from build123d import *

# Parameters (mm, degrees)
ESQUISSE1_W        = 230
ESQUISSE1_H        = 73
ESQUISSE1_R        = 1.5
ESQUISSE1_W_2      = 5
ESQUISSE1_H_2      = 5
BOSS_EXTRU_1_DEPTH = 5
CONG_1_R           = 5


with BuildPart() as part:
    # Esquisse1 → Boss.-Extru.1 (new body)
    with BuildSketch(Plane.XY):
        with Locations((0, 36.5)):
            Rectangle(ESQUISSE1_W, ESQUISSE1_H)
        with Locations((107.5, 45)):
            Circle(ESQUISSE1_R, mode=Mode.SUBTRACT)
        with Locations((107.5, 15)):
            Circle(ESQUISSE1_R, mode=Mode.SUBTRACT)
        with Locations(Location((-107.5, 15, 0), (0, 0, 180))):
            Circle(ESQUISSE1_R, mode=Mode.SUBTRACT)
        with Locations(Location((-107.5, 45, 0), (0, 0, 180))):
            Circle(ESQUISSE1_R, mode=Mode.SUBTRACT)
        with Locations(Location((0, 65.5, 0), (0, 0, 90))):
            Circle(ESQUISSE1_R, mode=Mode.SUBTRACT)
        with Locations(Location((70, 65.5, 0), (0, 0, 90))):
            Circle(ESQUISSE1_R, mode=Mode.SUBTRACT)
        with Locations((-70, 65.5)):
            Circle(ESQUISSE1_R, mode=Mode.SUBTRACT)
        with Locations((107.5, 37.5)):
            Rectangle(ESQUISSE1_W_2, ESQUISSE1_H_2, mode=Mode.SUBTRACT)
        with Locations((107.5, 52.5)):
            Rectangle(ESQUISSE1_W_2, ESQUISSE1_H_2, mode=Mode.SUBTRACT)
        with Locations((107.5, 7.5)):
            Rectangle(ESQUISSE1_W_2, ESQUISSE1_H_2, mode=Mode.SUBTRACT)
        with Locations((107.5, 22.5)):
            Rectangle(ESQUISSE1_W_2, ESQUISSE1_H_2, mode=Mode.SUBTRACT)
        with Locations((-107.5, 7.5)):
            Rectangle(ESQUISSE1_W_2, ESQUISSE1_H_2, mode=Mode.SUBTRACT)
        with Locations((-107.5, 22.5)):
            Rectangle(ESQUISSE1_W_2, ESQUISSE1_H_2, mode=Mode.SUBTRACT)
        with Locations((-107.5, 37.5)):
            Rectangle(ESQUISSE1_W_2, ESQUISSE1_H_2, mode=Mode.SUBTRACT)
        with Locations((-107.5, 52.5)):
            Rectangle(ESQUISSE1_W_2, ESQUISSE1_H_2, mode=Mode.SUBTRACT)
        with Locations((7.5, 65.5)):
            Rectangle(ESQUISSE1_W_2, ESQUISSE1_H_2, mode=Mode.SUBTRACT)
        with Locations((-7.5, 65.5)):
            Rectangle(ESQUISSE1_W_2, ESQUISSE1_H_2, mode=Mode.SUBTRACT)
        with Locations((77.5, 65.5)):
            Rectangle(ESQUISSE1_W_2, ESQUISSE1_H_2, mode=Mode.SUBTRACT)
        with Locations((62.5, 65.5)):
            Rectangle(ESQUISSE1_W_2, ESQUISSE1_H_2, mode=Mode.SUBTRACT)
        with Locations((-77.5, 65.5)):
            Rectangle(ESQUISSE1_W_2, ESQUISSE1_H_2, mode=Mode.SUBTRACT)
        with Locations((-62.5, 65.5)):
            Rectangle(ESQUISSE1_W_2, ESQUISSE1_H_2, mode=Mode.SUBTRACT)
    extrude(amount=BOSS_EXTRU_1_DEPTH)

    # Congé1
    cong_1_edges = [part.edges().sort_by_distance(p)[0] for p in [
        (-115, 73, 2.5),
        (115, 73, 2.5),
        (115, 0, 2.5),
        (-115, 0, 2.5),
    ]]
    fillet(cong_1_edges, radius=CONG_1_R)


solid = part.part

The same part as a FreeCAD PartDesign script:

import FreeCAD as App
import Part
import Sketcher
Q = App.Units.Quantity


def edges_at(feature, points):
    """Names of the edges that pass closest to the given points."""
    edges = feature.Shape.Edges
    near = lambda p: min(range(len(edges)), key=lambda i: edges[i].distToShape(Part.Vertex(*p))[0])
    return sorted({f"Edge{near(p) + 1}" for p in points})


def add_polygon(sketch, points):
    """Adds a closed chain of lines whose ends are joined by coincident constraints."""
    first, n = sketch.GeometryCount, len(points)
    for a, b in zip(points, points[1:] + points[:1]):
        sketch.addGeometry(Part.LineSegment(App.Vector(*a, 0), App.Vector(*b, 0)), False)
    for i in range(n):
        sketch.addConstraint(Sketcher.Constraint("Coincident", first + i, 2, first + (i + 1) % n, 1))

doc = App.newDocument("Part")
body = doc.addObject("PartDesign::Body", "Body")

sketch1 = doc.addObject("Sketcher::SketchObject", "Sketch")
body.addObject(sketch1)
sketch1.AttachmentSupport = (doc.XY_Plane, [""])
sketch1.MapMode = "FlatFace"
add_polygon(sketch1, [(-115, 73), (-115, 0), (115, 0), (115, 73)])
add_polygon(sketch1, [(-105, 5), (-110, 5), (-110, 10), (-105, 10)])
sketch1.addGeometry(Part.Circle(App.Vector(-107.5, 15, 0), App.Vector(0, 0, 1), 1.5), False)
add_polygon(sketch1, [(-105, 20), (-110, 20), (-110, 25), (-105, 25)])
add_polygon(sketch1, [(110, 5), (105, 5), (105, 10), (110, 10)])
sketch1.addGeometry(Part.Circle(App.Vector(107.5, 15, 0), App.Vector(0, 0, 1), 1.5), False)
add_polygon(sketch1, [(110, 20), (105, 20), (105, 25), (110, 25)])
add_polygon(sketch1, [(-105, 35), (-110, 35), (-110, 40), (-105, 40)])
sketch1.addGeometry(Part.Circle(App.Vector(-107.5, 45, 0), App.Vector(0, 0, 1), 1.5), False)
add_polygon(sketch1, [(-105, 50), (-110, 50), (-110, 55), (-105, 55)])
add_polygon(sketch1, [(-75, 63), (-80, 63), (-80, 68), (-75, 68)])
sketch1.addGeometry(Part.Circle(App.Vector(-70, 65.5, 0), App.Vector(0, 0, 1), 1.5), False)
add_polygon(sketch1, [(-60, 63), (-65, 63), (-65, 68), (-60, 68)])
add_polygon(sketch1, [(-5, 63), (-10, 63), (-10, 68), (-5, 68)])
add_polygon(sketch1, [(110, 35), (105, 35), (105, 40), (110, 40)])
sketch1.addGeometry(Part.Circle(App.Vector(107.5, 45, 0), App.Vector(0, 0, 1), 1.5), False)
sketch1.addGeometry(Part.Circle(App.Vector(0, 65.5, 0), App.Vector(0, 0, 1), 1.5), False)
add_polygon(sketch1, [(10, 63), (5, 63), (5, 68), (10, 68)])
add_polygon(sketch1, [(110, 50), (105, 50), (105, 55), (110, 55)])
add_polygon(sketch1, [(65, 63), (60, 63), (60, 68), (65, 68)])
sketch1.addGeometry(Part.Circle(App.Vector(70, 65.5, 0), App.Vector(0, 0, 1), 1.5), False)
add_polygon(sketch1, [(80, 63), (75, 63), (75, 68), (80, 68)])
sketch1.addConstraint([
    Sketcher.Constraint("Vertical", 0),
    Sketcher.Constraint("Horizontal", 1),
    Sketcher.Constraint("Vertical", 2),
    Sketcher.Constraint("Horizontal", 3),
    Sketcher.Constraint("Horizontal", 4),
    Sketcher.Constraint("Vertical", 5),
    Sketcher.Constraint("Horizontal", 6),
    Sketcher.Constraint("Vertical", 7),
    Sketcher.Constraint("Horizontal", 9),
    Sketcher.Constraint("Vertical", 10),
    Sketcher.Constraint("Horizontal", 11),
    Sketcher.Constraint("Vertical", 12),
    Sketcher.Constraint("Horizontal", 13),
    Sketcher.Constraint("Vertical", 14),
    Sketcher.Constraint("Horizontal", 15),
    Sketcher.Constraint("Vertical", 16),
    Sketcher.Constraint("Horizontal", 18),
    Sketcher.Constraint("Vertical", 19),
    Sketcher.Constraint("Horizontal", 20),
    Sketcher.Constraint("Vertical", 21),
    Sketcher.Constraint("Horizontal", 22),
    Sketcher.Constraint("Vertical", 23),
    Sketcher.Constraint("Horizontal", 24),
    Sketcher.Constraint("Vertical", 25),
    Sketcher.Constraint("Horizontal", 27),
    Sketcher.Constraint("Vertical", 28),
    Sketcher.Constraint("Horizontal", 29),
    Sketcher.Constraint("Vertical", 30),
    Sketcher.Constraint("Horizontal", 31),
    Sketcher.Constraint("Vertical", 32),
    Sketcher.Constraint("Horizontal", 33),
    Sketcher.Constraint("Vertical", 34),
    Sketcher.Constraint("Horizontal", 36),
    Sketcher.Constraint("Vertical", 37),
    Sketcher.Constraint("Horizontal", 38),
    Sketcher.Constraint("Vertical", 39),
    Sketcher.Constraint("Horizontal", 40),
    Sketcher.Constraint("Vertical", 41),
    Sketcher.Constraint("Horizontal", 42),
    Sketcher.Constraint("Vertical", 43),
    Sketcher.Constraint("Horizontal", 44),
    Sketcher.Constraint("Vertical", 45),
    Sketcher.Constraint("Horizontal", 46),
    Sketcher.Constraint("Vertical", 47),
    Sketcher.Constraint("Horizontal", 50),
    Sketcher.Constraint("Vertical", 51),
    Sketcher.Constraint("Horizontal", 52),
    Sketcher.Constraint("Vertical", 53),
    Sketcher.Constraint("Horizontal", 54),
    Sketcher.Constraint("Vertical", 55),
    Sketcher.Constraint("Horizontal", 56),
    Sketcher.Constraint("Vertical", 57),
    Sketcher.Constraint("Horizontal", 58),
    Sketcher.Constraint("Vertical", 59),
    Sketcher.Constraint("Horizontal", 60),
    Sketcher.Constraint("Vertical", 61),
    Sketcher.Constraint("Horizontal", 63),
    Sketcher.Constraint("Vertical", 64),
    Sketcher.Constraint("Horizontal", 65),
    Sketcher.Constraint("Vertical", 66),
    Sketcher.Constraint("Equal", 8, 17),
    Sketcher.Constraint("Equal", 17, 26),
    Sketcher.Constraint("Equal", 26, 35),
    Sketcher.Constraint("Equal", 35, 48),
    Sketcher.Constraint("Equal", 48, 49),
    Sketcher.Constraint("Equal", 49, 62),
    Sketcher.Constraint("Symmetric", 0, 2, 1, 2, -1, 1),
    Sketcher.Constraint("Symmetric", 8, 3, 17, 3, -2),
    Sketcher.Constraint("Symmetric", 26, 3, 48, 3, -2),
    Sketcher.Constraint("Symmetric", 35, 3, 62, 3, -2),
    Sketcher.Constraint("Symmetric", 7, 2, 13, 2, -2),
    Sketcher.Constraint("Symmetric", 5, 2, 15, 2, -2),
    Sketcher.Constraint("Symmetric", 12, 2, 18, 2, -2),
    Sketcher.Constraint("Symmetric", 10, 2, 20, 2, -2),
    Sketcher.Constraint("Symmetric", 25, 2, 44, 2, -2),
    Sketcher.Constraint("Symmetric", 23, 2, 46, 2, -2),
    Sketcher.Constraint("Symmetric", 43, 2, 50, 2, -2),
    Sketcher.Constraint("Symmetric", 41, 2, 52, 2, -2),
    Sketcher.Constraint("Symmetric", 30, 2, 54, 2, -2),
    Sketcher.Constraint("Symmetric", 28, 2, 56, 2, -2),
    Sketcher.Constraint("Symmetric", 39, 2, 58, 2, -2),
    Sketcher.Constraint("Symmetric", 37, 2, 60, 2, -2),
    Sketcher.Constraint("Symmetric", 34, 2, 63, 2, -2),
    Sketcher.Constraint("Symmetric", 32, 2, 65, 2, -2),
    Sketcher.Constraint("PointOnObject", 49, 3, -2),
    Sketcher.Constraint("Horizontal", 35, 3, 49, 3),
    Sketcher.Constraint("Horizontal", 34, 2, 36, 2),
    Sketcher.Constraint("Horizontal", 33, 2, 37, 2),
    Sketcher.Constraint("Horizontal", 39, 2, 40, 2),
    Sketcher.Constraint("Horizontal", 38, 2, 41, 2),
    Sketcher.Constraint("Vertical", 8, 3, 26, 3),
    Sketcher.Constraint("Vertical", 5, 2, 9, 2),
    Sketcher.Constraint("Vertical", 7, 2, 11, 2),
    Sketcher.Constraint("Vertical", 10, 2, 22, 2),
    Sketcher.Constraint("Vertical", 12, 2, 24, 2),
    Sketcher.Constraint("Vertical", 23, 2, 27, 2),
    Sketcher.Constraint("Vertical", 25, 2, 29, 2),
    Sketcher.Constraint("Equal", 29, 31),
    Sketcher.Constraint("Equal", 33, 36),
    Sketcher.Constraint("Equal", 38, 40),
    Sketcher.Constraint("Equal", 65, 5),
    Sketcher.Constraint("Equal", 7, 10),
    Sketcher.Constraint("Equal", 21, 23),
    Sketcher.Constraint("Equal", 25, 28),
    Sketcher.Constraint("Equal", 30, 32),
    Sketcher.Constraint("Diameter", 8, Q("3 mm")),
    Sketcher.Constraint("DistanceX", 1, 1, 1, 2, Q("230 mm")),
    Sketcher.Constraint("DistanceX", 4, 2, 4, 1, Q("5 mm")),
    Sketcher.Constraint("DistanceY", 0, 2, 0, 1, Q("73 mm")),
    Sketcher.Constraint("DistanceY", -1, 1, 8, 3, Q("15 mm")),
    Sketcher.Constraint("DistanceY", -1, 1, 26, 3, Q("45 mm")),
    Sketcher.Constraint("DistanceX", 35, 3, -1, 1, Q("70 mm")),
    Sketcher.Constraint("DistanceX", 4, 2, -1, 1, Q("110 mm")),
    Sketcher.Constraint("DistanceY", -1, 1, 4, 2, Q("5 mm")),
    Sketcher.Constraint("DistanceY", -1, 1, 9, 2, Q("20 mm")),
    Sketcher.Constraint("DistanceY", -1, 1, 22, 2, Q("35 mm")),
    Sketcher.Constraint("DistanceY", -1, 1, 27, 2, Q("50 mm")),
    Sketcher.Constraint("DistanceX", 31, 2, -1, 1, Q("80 mm")),
    Sketcher.Constraint("DistanceY", -1, 1, 31, 2, Q("63 mm")),
    Sketcher.Constraint("DistanceX", 36, 2, -1, 1, Q("65 mm")),
    Sketcher.Constraint("DistanceX", 40, 2, -1, 1, Q("10 mm")),
    Sketcher.Constraint("DistanceX", 8, 3, -1, 1, Q("107.5 mm")),
    Sketcher.Constraint("DistanceY", -1, 1, 35, 3, Q("65.5 mm")),
])
pad1 = doc.addObject("PartDesign::Pad", "Pad")
body.addObject(pad1)
pad1.Profile = sketch1
pad1.Length = 5
doc.recompute()

fillet = doc.addObject("PartDesign::Fillet", "Fillet")
body.addObject(fillet)
fillet.Base = (pad1, edges_at(pad1, [
    (-115, 73, 2.5),
    (115, 73, 2.5),
    (115, 0, 2.5),
    (-115, 0, 2.5),
]))
fillet.Radius = 5

doc.recompute()
